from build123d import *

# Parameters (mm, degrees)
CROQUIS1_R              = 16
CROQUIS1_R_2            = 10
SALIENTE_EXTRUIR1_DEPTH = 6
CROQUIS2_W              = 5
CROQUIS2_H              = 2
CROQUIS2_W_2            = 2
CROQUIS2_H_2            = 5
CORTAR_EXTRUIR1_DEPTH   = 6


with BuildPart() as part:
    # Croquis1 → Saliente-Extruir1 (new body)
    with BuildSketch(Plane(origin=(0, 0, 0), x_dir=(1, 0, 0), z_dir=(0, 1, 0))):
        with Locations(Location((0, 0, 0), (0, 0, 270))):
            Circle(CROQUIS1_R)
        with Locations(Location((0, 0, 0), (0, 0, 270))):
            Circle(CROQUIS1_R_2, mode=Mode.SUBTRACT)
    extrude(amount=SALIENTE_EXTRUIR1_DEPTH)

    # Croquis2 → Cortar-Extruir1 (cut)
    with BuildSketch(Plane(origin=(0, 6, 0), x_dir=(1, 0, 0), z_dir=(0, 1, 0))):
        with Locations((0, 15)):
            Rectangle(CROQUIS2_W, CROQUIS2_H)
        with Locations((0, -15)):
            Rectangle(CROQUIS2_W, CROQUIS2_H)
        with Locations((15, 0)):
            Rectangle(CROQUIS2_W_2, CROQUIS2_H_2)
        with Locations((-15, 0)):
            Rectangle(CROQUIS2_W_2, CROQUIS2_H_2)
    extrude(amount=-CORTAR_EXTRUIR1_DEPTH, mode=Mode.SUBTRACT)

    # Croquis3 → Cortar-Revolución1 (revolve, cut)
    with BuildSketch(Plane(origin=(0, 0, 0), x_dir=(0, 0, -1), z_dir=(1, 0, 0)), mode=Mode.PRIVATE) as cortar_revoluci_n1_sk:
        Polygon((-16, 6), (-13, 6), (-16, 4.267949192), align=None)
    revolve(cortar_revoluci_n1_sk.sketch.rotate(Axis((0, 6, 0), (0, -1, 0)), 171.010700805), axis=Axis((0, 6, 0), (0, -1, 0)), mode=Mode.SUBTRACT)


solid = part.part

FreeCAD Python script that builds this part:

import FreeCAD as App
import Part
import Sketcher

V = App.Vector
Q = App.Units.Quantity

doc = App.newDocument("Part")
body = doc.addObject("PartDesign::Body", "Body")

# Sketch on XZ plane
sketch1 = body.newObject("Sketcher::SketchObject", "Sketch")
sketch1.AttachmentSupport = (doc.getObject("XZ_Plane"), [""])
sketch1.MapMode = "FlatFace"
sketch1.addGeometry([
    Part.Circle(V(0, 0, 0), V(0, 0, 1), 16),
    Part.Circle(V(0, 0, 0), V(0, 0, 1), 10),
], False)
sketch1.addConstraint([
    Sketcher.Constraint("Coincident", 0, 3, -1, 1),
    Sketcher.Constraint("Coincident", 1, 3, -1, 1),
    Sketcher.Constraint("Diameter", 0, Q("32 mm")),
    Sketcher.Constraint("Diameter", 1, Q("20 mm")),
])
pad1 = body.newObject("PartDesign::Pad", "Pad")
pad1.Profile = sketch1
pad1.Length = 6
pad1.Reversed = True

# Sketch on XZ plane
sketch2 = body.newObject("Sketcher::SketchObject", "Sketch001")
sketch2.AttachmentSupport = (doc.getObject("XZ_Plane"), [""])
sketch2.MapMode = "FlatFace"
sketch2.AttachmentOffset = App.Placement(V(0, 0, -6), App.Rotation())
sketch2.addGeometry([
    Part.LineSegment(V(-2.5, -16, 0), V(-2.5, -14, 0)),  # 0
    Part.LineSegment(V(-2.5, -14, 0), V(2.5, -14, 0)),  # 1
    Part.LineSegment(V(2.5, -14, 0), V(2.5, -16, 0)),  # 2
    Part.LineSegment(V(2.5, -16, 0), V(-2.5, -16, 0)),  # 3
    Part.LineSegment(V(-2.5, 14, 0), V(-2.5, 16, 0)),  # 4
    Part.LineSegment(V(-2.5, 16, 0), V(2.5, 16, 0)),  # 5
    Part.LineSegment(V(2.5, 16, 0), V(2.5, 14, 0)),  # 6
    Part.LineSegment(V(2.5, 14, 0), V(-2.5, 14, 0)),  # 7
    Part.LineSegment(V(14, -2.5, 0), V(14, 2.5, 0)),  # 8
    Part.LineSegment(V(14, 2.5, 0), V(16, 2.5, 0)),  # 9
    Part.LineSegment(V(16, 2.5, 0), V(16, -2.5, 0)),  # 10
    Part.LineSegment(V(16, -2.5, 0), V(14, -2.5, 0)),  # 11
    Part.LineSegment(V(-16, -2.5, 0), V(-16, 2.5, 0)),  # 12
    Part.LineSegment(V(-16, 2.5, 0), V(-14, 2.5, 0)),  # 13
    Part.LineSegment(V(-14, 2.5, 0), V(-14, -2.5, 0)),  # 14
    Part.LineSegment(V(-14, -2.5, 0), V(-16, -2.5, 0)),  # 15
], False)
sketch2.addConstraint([
    Sketcher.Constraint("Coincident", 0, 2, 1, 1),
    Sketcher.Constraint("Coincident", 1, 2, 2, 1),
    Sketcher.Constraint("Coincident", 2, 2, 3, 1),
    Sketcher.Constraint("Coincident", 3, 2, 0, 1),
    Sketcher.Constraint("Coincident", 4, 2, 5, 1),
    Sketcher.Constraint("Coincident", 5, 2, 6, 1),
    Sketcher.Constraint("Coincident", 6, 2, 7, 1),
    Sketcher.Constraint("Coincident", 7, 2, 4, 1),
    Sketcher.Constraint("Coincident", 8, 2, 9, 1),
    Sketcher.Constraint("Coincident", 9, 2, 10, 1),
    Sketcher.Constraint("Coincident", 10, 2, 11, 1),
    Sketcher.Constraint("Coincident", 11, 2, 8, 1),
    Sketcher.Constraint("Coincident", 12, 2, 13, 1),
    Sketcher.Constraint("Coincident", 13, 2, 14, 1),
    Sketcher.Constraint("Coincident", 14, 2, 15, 1),
    Sketcher.Constraint("Coincident", 15, 2, 12, 1),
    Sketcher.Constraint("Vertical", 0),
    Sketcher.Constraint("Horizontal", 1),
    Sketcher.Constraint("Vertical", 2),
    Sketcher.Constraint("Horizontal", 3),
    Sketcher.Constraint("Vertical", 4),
    Sketcher.Constraint("Horizontal", 5),
    Sketcher.Constraint("Vertical", 6),
    Sketcher.Constraint("Horizontal", 7),
    Sketcher.Constraint("Vertical", 8),
    Sketcher.Constraint("Horizontal", 9),
    Sketcher.Constraint("Vertical", 10),
    Sketcher.Constraint("Horizontal", 11),
    Sketcher.Constraint("Vertical", 12),
    Sketcher.Constraint("Horizontal", 13),
    Sketcher.Constraint("Vertical", 14),
    Sketcher.Constraint("Horizontal", 15),
    Sketcher.Constraint("Symmetric", 2, 2, 4, 2, -1, 1),
    Sketcher.Constraint("Symmetric", 0, 2, 6, 2, -1, 1),
    Sketcher.Constraint("Symmetric", 10, 2, 12, 2, -1, 1),
    Sketcher.Constraint("Symmetric", 8, 2, 14, 2, -1, 1),
    Sketcher.Constraint("Horizontal", 9, 2, 12, 2),
    Sketcher.Constraint("Vertical", 3, 2, 4, 2),
    Sketcher.Constraint("Equal", 15, 0),
    Sketcher.Constraint("Equal", 7, 8),
    Sketcher.Constraint("DistanceX", 1, 1, 1, 2, Q("5 mm")),
    Sketcher.Constraint("DistanceX", 9, 1, 9, 2, Q("2 mm")),
    Sketcher.Constraint("DistanceY", 0, 2, -1, 1, Q("14 mm")),
    Sketcher.Constraint("DistanceX", -1, 1, 8, 2, Q("14 mm")),
])
pocket1 = body.newObject("PartDesign::Pocket", "Pocket")
pocket1.Profile = sketch2
pocket1.Length = 6
pocket1.Reversed = True

# Sketch on YZ plane
sketch3 = body.newObject("Sketcher::SketchObject", "Sketch002")
sketch3.AttachmentSupport = (doc.getObject("YZ_Plane"), [""])
sketch3.MapMode = "FlatFace"
sketch3.addGeometry([
    Part.LineSegment(V(6, 13, 0), V(6, 16, 0)),
    Part.LineSegment(V(6, 16, 0), V(4.267949, 16, 0)),
    Part.LineSegment(V(4.267949, 16, 0), V(6, 13, 0)),
], False)
sketch3.addConstraint([
    Sketcher.Constraint("Coincident", 0, 2, 1, 1),
    Sketcher.Constraint("Coincident", 1, 2, 2, 1),
    Sketcher.Constraint("Coincident", 2, 2, 0, 1),
    Sketcher.Constraint("Vertical", 0),
    Sketcher.Constraint("Horizontal", 1),
    Sketcher.Constraint("DistanceY", 0, 1, 0, 2, Q("3 mm")),
    Sketcher.Constraint("Angle", 2, Q("-60 deg")),
    Sketcher.Constraint("DistanceX", -1, 1, 0, 2, Q("6 mm")),
    Sketcher.Constraint("DistanceY", -1, 1, 0, 2, Q("16 mm")),
])
groove = body.newObject("PartDesign::Groove", "Groove")
groove.Profile = sketch3
groove.ReferenceAxis = (sketch3, ["H_Axis"])
groove.Angle = 360

doc.recompute()
